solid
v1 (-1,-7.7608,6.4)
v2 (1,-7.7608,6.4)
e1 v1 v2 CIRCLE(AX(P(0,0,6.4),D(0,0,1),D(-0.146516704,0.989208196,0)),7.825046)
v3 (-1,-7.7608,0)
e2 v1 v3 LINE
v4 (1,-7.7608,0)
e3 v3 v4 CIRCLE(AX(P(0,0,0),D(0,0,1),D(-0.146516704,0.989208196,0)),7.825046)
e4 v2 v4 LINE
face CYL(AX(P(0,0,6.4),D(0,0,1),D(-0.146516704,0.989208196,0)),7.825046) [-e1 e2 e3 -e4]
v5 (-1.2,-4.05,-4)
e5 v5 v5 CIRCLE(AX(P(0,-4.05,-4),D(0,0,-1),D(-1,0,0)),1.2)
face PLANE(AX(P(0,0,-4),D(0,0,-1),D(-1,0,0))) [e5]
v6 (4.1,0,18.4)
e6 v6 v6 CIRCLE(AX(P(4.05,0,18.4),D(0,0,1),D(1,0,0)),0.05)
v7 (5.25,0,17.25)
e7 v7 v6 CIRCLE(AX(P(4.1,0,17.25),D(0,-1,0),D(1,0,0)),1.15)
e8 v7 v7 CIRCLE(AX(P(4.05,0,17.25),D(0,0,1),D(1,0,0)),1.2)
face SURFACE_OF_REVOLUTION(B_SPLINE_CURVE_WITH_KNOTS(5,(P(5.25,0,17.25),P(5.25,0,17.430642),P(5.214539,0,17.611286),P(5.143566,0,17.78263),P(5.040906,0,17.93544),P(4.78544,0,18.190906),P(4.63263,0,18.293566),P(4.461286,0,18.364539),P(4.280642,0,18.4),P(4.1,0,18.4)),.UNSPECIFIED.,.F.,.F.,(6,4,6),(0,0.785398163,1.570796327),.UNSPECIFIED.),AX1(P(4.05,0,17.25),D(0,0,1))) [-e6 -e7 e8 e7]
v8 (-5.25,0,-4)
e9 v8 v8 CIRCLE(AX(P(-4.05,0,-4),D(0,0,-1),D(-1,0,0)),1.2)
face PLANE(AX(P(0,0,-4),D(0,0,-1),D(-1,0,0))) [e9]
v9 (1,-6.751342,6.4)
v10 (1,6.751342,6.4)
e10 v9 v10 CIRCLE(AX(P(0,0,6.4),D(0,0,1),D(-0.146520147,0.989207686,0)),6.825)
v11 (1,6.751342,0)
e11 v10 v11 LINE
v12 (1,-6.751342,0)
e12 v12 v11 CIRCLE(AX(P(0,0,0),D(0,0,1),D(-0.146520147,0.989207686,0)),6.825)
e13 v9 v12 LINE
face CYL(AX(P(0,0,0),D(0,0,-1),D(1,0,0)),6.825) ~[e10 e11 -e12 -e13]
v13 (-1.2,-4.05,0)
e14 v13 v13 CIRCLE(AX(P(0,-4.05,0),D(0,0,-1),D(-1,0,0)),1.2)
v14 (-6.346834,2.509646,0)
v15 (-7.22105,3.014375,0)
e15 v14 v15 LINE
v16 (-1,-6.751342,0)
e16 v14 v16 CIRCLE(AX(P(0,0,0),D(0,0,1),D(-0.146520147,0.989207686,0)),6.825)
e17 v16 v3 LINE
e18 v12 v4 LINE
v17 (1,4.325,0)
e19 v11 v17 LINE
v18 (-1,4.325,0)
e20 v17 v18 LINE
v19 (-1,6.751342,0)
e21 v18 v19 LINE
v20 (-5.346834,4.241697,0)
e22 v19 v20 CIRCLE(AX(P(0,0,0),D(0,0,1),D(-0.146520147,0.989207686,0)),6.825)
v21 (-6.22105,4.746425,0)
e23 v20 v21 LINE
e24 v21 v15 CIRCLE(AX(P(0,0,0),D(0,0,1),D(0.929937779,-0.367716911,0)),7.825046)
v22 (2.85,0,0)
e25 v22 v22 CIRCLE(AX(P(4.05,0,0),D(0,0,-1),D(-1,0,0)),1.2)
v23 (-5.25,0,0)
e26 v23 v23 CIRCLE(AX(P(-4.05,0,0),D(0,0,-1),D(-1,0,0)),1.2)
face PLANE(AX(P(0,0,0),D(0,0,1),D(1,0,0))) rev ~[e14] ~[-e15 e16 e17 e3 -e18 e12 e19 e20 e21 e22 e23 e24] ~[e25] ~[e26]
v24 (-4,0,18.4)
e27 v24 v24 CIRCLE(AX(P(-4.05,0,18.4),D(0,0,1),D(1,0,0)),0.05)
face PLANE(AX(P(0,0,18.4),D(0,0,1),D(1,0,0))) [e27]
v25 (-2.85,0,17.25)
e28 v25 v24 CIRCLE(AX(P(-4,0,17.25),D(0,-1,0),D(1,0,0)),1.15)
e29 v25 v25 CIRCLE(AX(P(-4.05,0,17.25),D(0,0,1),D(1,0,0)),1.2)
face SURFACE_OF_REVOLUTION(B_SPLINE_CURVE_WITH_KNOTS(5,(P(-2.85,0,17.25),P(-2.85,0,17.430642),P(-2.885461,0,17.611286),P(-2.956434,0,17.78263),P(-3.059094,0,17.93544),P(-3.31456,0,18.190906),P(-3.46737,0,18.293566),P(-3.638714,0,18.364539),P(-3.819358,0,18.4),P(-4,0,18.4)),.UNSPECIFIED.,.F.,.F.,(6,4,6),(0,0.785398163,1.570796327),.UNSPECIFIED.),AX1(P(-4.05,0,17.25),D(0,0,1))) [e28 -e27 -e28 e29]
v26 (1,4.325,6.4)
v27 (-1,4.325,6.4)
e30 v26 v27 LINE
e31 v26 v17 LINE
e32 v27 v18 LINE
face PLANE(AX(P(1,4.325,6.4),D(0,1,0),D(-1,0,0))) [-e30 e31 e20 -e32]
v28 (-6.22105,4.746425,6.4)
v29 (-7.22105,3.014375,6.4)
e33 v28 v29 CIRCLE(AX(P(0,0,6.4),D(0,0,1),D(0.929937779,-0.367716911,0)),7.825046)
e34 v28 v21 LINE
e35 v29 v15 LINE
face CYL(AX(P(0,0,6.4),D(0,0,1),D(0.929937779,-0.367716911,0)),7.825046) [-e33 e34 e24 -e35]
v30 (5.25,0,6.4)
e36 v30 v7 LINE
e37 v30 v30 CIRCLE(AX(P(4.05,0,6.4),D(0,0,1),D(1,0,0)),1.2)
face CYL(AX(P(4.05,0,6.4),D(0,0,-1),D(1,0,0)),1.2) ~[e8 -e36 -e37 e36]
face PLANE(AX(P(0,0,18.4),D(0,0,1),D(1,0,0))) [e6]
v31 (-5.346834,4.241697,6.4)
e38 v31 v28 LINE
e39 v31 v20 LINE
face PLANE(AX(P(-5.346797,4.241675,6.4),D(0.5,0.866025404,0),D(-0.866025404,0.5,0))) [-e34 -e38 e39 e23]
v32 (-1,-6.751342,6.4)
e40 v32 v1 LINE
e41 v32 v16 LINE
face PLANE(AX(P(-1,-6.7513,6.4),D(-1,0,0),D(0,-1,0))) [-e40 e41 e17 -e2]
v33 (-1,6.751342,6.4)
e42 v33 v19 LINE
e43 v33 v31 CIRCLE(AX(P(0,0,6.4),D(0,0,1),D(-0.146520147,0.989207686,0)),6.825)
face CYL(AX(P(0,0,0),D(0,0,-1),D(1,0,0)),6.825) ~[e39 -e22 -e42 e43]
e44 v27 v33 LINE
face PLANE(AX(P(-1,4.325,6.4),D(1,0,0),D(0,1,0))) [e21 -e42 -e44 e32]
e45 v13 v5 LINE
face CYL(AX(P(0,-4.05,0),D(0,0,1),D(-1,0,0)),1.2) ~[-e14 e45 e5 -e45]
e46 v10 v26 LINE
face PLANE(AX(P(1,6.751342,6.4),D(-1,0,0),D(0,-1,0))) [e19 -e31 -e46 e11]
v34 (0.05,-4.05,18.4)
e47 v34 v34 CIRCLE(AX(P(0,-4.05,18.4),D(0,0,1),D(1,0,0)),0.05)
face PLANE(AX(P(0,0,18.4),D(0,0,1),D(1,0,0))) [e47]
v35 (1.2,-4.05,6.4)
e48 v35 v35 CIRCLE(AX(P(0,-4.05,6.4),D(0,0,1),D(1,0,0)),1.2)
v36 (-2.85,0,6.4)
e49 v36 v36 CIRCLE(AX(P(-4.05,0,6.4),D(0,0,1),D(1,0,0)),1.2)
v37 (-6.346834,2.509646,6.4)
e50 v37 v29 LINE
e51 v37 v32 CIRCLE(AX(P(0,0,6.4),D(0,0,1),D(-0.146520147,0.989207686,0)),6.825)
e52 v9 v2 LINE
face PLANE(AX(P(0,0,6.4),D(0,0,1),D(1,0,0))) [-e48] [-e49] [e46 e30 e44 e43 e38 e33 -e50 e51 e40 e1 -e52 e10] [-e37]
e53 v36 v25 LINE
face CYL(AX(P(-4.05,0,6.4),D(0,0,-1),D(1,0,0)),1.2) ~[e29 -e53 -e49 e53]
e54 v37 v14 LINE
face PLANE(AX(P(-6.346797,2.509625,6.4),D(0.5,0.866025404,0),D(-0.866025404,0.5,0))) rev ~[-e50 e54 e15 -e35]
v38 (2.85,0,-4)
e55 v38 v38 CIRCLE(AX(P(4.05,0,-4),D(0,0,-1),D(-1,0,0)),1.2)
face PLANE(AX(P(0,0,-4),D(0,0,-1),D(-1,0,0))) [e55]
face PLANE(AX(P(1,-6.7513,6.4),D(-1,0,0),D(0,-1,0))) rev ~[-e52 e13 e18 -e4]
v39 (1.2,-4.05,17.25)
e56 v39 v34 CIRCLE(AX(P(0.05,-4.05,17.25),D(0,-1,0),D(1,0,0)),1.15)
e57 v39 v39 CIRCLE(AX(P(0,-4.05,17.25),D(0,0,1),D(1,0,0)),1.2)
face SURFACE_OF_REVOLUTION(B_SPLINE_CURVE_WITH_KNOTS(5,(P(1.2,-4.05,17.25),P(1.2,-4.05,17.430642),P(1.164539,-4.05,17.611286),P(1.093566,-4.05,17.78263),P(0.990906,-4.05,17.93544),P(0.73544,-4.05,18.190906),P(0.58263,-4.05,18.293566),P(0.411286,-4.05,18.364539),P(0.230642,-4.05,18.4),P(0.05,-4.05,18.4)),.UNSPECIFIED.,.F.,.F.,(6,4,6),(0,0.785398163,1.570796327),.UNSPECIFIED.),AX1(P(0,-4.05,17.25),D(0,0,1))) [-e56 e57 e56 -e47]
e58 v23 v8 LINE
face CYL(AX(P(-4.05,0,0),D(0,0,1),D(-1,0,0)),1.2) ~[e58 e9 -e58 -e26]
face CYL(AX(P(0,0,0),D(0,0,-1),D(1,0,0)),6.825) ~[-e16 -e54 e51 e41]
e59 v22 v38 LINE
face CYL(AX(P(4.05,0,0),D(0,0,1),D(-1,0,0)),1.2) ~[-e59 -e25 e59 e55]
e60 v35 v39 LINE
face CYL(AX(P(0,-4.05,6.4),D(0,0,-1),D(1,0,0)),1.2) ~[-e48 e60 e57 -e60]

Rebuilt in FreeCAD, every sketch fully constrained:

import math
import FreeCAD as App
import Part
import Sketcher


def edges_at(feature, points):
    """Names of the edges that pass closest to the given points."""
    edges = feature.Shape.Edges
    near = lambda p: min(range(len(edges)), key=lambda i: edges[i].distToShape(Part.Vertex(*p))[0])
    return sorted({f"Edge{near(p) + 1}" for p in points})

doc = App.newDocument("Part")
body = doc.addObject("PartDesign::Body", "Body")

# Sketch on XY plane
sketch1 = body.newObject("Sketcher::SketchObject", "Sketch")
sketch1.AttachmentSupport = (doc.getObject("XY_Plane"), [""])
sketch1.MapMode = "FlatFace"
sketch1.addGeometry(Part.Circle(App.Vector(0, 0, 0), App.Vector(0, 0, 1), 6.825), False)
sketch1.addConstraint([
    Sketcher.Constraint("Coincident", 0, 3, -1, 1),
    Sketcher.Constraint("Diameter", 0, 13.65),
])
pad1 = body.newObject("PartDesign::Pad", "Pad")
pad1.Profile = sketch1
pad1.Length = 6.4

# Sketch on XY plane
sketch2 = body.newObject("Sketcher::SketchObject", "Sketch001")
sketch2.AttachmentSupport = (doc.getObject("XY_Plane"), [""])
sketch2.MapMode = "FlatFace"
sketch2.AttachmentOffset = App.Placement(App.Vector(0, 0, 6.4), App.Rotation())
sketch2.addGeometry([
    Part.Circle(App.Vector(-4.05, 0, 0), App.Vector(0, 0, 1), 1.2),
    Part.Circle(App.Vector(4.05, 0, 0), App.Vector(0, 0, 1), 1.2),
    Part.Circle(App.Vector(0, -4.05, 0), App.Vector(0, 0, 1), 1.2),
], False)
sketch2.addConstraint([
    Sketcher.Constraint("Equal", 0, 1),
    Sketcher.Constraint("Equal", 1, 2),
    Sketcher.Constraint("Symmetric", 0, 3, 1, 3, -1, 1),
    Sketcher.Constraint("PointOnObject", 0, 3, -1),
    Sketcher.Constraint("PointOnObject", 2, 3, -2),
    Sketcher.Constraint("Diameter", 0, 2.4),
    Sketcher.Constraint("DistanceX", 0, 3, 1, 3, 8.1),
    Sketcher.Constraint("DistanceY", 2, 3, -1, 1, 4.05),
])
pad2 = body.newObject("PartDesign::Pad", "Pad001")
pad2.Profile = sketch2
pad2.Length = 12
doc.recompute()

fillet = body.newObject("PartDesign::Fillet", "Fillet")
fillet.Base = (pad2, edges_at(pad2, [(-5.25, 0, 18.4), (2.85, 0, 18.4), (-1.2, -4.05, 18.4)]))
fillet.Radius = 1.15

# Sketch on XY plane
sketch3 = body.newObject("Sketcher::SketchObject", "Sketch002")
sketch3.AttachmentSupport = (doc.getObject("XY_Plane"), [""])
sketch3.MapMode = "FlatFace"
sketch3.addGeometry([
    Part.Circle(App.Vector(4.05, 0, 0), App.Vector(0, 0, 1), 1.2),
    Part.Circle(App.Vector(-4.05, 0, 0), App.Vector(0, 0, 1), 1.2),
    Part.Circle(App.Vector(0, -4.05, 0), App.Vector(0, 0, 1), 1.2),
], False)
sketch3.addConstraint([
    Sketcher.Constraint("Equal", 0, 1),
    Sketcher.Constraint("Equal", 1, 2),
    Sketcher.Constraint("Symmetric", 0, 3, 1, 3, -1, 1),
    Sketcher.Constraint("PointOnObject", 0, 3, -1),
    Sketcher.Constraint("PointOnObject", 2, 3, -2),
    Sketcher.Constraint("Diameter", 0, 2.4),
    Sketcher.Constraint("DistanceX", 1, 3, 0, 3, 8.1),
    Sketcher.Constraint("DistanceY", 2, 3, -1, 1, 4.05),
])
pad3 = body.newObject("PartDesign::Pad", "Pad002")
pad3.Profile = sketch3
pad3.Length = 4
pad3.Reversed = True

# Sketch on XY plane
sketch4 = body.newObject("Sketcher::SketchObject", "Sketch003")
sketch4.AttachmentSupport = (doc.getObject("XY_Plane"), [""])
sketch4.MapMode = "FlatFace"
sketch4.AttachmentOffset = App.Placement(App.Vector(0, 0, 6.4), App.Rotation())
sketch4.addGeometry([
    Part.ArcOfCircle(Part.Circle(App.Vector(0, 0, 0), App.Vector(0, 0, 1), 6.825), math.radians(81.574683), math.radians(98.425317)),
    Part.LineSegment(App.Vector(-1, 6.751342, 0), App.Vector(-1, 4.325, 0)),
    Part.LineSegment(App.Vector(-1, 4.325, 0), App.Vector(1, 4.325, 0)),
    Part.LineSegment(App.Vector(1, 4.325, 0), App.Vector(1, 6.751342, 0)),
], False)
sketch4.addConstraint([
    Sketcher.Constraint("Coincident", 0, 2, 1, 1),
    Sketcher.Constraint("Coincident", 1, 2, 2, 1),
    Sketcher.Constraint("Coincident", 2, 2, 3, 1),
    Sketcher.Constraint("Coincident", 3, 2, 0, 1),
    Sketcher.Constraint("Vertical", 1),
    Sketcher.Constraint("Horizontal", 2),
    Sketcher.Constraint("Vertical", 3),
    Sketcher.Constraint("Coincident", 0, 3, -1, 1),
    Sketcher.Constraint("Horizontal", 0, 2, 3, 2),
    Sketcher.Constraint("DistanceX", 2, 1, 2, 2, 2.0),
    Sketcher.Constraint("Radius", 0, 6.825),
    Sketcher.Constraint("DistanceY", 1, 2, 1, 1, 2.4263),
])
pocket1 = body.newObject("PartDesign::Pocket", "Pocket")
pocket1.Profile = sketch4
pocket1.Type = "ThroughAll"

# Sketch on XY plane
sketch5 = body.newObject("Sketcher::SketchObject", "Sketch004")
sketch5.AttachmentSupport = (doc.getObject("XY_Plane"), [""])
sketch5.MapMode = "FlatFace"
sketch5.AttachmentOffset = App.Placement(App.Vector(0, 0, 6.4), App.Rotation())
sketch5.addGeometry([
    Part.ArcOfCircle(Part.Circle(App.Vector(0, 0, 0), App.Vector(0, 0, 1), 6.824958), math.radians(-98.42537), math.radians(-81.57463)),
    Part.LineSegment(App.Vector(-1, -6.7513, 0), App.Vector(-1, -7.7608, 0)),
    Part.ArcOfCircle(Part.Circle(App.Vector(0, 0, 0), App.Vector(0, 0, 1), 7.825046), math.radians(-97.342259), math.radians(-82.657741)),
    Part.LineSegment(App.Vector(1, -7.7608, 0), App.Vector(1, -6.7513, 0)),
], False)
sketch5.addConstraint([
    Sketcher.Constraint("Coincident", 0, 1, 1, 1),
    Sketcher.Constraint("Coincident", 1, 2, 2, 1),
    Sketcher.Constraint("Coincident", 2, 2, 3, 1),
    Sketcher.Constraint("Coincident", 3, 2, 0, 2),
    Sketcher.Constraint("Vertical", 1),
    Sketcher.Constraint("Vertical", 3),
    Sketcher.Constraint("Coincident", 0, 3, -1, 1),
    Sketcher.Constraint("Coincident", 2, 3, -1, 1),
    Sketcher.Constraint("Horizontal", 1, 2, 2, 2),
    Sketcher.Constraint("DistanceX", 0, 1, -1, 1, 1.0),
    Sketcher.Constraint("Radius", 0, 6.825),
    Sketcher.Constraint("Radius", 2, 7.825),
])
pad4 = body.newObject("PartDesign::Pad", "Pad003")
pad4.Profile = sketch5
pad4.Length = 6.4
pad4.Reversed = True
doc.recompute()

polarpattern = body.newObject("PartDesign::PolarPattern", "PolarPattern")
polarpattern.Originals = [pad4]
polarpattern.Axis = (doc.getObject("Z_Axis"), [""])
polarpattern.Angle = 120
polarpattern.Occurrences = 2
polarpattern.Reversed = True
body.Tip = polarpattern

doc.recompute()
